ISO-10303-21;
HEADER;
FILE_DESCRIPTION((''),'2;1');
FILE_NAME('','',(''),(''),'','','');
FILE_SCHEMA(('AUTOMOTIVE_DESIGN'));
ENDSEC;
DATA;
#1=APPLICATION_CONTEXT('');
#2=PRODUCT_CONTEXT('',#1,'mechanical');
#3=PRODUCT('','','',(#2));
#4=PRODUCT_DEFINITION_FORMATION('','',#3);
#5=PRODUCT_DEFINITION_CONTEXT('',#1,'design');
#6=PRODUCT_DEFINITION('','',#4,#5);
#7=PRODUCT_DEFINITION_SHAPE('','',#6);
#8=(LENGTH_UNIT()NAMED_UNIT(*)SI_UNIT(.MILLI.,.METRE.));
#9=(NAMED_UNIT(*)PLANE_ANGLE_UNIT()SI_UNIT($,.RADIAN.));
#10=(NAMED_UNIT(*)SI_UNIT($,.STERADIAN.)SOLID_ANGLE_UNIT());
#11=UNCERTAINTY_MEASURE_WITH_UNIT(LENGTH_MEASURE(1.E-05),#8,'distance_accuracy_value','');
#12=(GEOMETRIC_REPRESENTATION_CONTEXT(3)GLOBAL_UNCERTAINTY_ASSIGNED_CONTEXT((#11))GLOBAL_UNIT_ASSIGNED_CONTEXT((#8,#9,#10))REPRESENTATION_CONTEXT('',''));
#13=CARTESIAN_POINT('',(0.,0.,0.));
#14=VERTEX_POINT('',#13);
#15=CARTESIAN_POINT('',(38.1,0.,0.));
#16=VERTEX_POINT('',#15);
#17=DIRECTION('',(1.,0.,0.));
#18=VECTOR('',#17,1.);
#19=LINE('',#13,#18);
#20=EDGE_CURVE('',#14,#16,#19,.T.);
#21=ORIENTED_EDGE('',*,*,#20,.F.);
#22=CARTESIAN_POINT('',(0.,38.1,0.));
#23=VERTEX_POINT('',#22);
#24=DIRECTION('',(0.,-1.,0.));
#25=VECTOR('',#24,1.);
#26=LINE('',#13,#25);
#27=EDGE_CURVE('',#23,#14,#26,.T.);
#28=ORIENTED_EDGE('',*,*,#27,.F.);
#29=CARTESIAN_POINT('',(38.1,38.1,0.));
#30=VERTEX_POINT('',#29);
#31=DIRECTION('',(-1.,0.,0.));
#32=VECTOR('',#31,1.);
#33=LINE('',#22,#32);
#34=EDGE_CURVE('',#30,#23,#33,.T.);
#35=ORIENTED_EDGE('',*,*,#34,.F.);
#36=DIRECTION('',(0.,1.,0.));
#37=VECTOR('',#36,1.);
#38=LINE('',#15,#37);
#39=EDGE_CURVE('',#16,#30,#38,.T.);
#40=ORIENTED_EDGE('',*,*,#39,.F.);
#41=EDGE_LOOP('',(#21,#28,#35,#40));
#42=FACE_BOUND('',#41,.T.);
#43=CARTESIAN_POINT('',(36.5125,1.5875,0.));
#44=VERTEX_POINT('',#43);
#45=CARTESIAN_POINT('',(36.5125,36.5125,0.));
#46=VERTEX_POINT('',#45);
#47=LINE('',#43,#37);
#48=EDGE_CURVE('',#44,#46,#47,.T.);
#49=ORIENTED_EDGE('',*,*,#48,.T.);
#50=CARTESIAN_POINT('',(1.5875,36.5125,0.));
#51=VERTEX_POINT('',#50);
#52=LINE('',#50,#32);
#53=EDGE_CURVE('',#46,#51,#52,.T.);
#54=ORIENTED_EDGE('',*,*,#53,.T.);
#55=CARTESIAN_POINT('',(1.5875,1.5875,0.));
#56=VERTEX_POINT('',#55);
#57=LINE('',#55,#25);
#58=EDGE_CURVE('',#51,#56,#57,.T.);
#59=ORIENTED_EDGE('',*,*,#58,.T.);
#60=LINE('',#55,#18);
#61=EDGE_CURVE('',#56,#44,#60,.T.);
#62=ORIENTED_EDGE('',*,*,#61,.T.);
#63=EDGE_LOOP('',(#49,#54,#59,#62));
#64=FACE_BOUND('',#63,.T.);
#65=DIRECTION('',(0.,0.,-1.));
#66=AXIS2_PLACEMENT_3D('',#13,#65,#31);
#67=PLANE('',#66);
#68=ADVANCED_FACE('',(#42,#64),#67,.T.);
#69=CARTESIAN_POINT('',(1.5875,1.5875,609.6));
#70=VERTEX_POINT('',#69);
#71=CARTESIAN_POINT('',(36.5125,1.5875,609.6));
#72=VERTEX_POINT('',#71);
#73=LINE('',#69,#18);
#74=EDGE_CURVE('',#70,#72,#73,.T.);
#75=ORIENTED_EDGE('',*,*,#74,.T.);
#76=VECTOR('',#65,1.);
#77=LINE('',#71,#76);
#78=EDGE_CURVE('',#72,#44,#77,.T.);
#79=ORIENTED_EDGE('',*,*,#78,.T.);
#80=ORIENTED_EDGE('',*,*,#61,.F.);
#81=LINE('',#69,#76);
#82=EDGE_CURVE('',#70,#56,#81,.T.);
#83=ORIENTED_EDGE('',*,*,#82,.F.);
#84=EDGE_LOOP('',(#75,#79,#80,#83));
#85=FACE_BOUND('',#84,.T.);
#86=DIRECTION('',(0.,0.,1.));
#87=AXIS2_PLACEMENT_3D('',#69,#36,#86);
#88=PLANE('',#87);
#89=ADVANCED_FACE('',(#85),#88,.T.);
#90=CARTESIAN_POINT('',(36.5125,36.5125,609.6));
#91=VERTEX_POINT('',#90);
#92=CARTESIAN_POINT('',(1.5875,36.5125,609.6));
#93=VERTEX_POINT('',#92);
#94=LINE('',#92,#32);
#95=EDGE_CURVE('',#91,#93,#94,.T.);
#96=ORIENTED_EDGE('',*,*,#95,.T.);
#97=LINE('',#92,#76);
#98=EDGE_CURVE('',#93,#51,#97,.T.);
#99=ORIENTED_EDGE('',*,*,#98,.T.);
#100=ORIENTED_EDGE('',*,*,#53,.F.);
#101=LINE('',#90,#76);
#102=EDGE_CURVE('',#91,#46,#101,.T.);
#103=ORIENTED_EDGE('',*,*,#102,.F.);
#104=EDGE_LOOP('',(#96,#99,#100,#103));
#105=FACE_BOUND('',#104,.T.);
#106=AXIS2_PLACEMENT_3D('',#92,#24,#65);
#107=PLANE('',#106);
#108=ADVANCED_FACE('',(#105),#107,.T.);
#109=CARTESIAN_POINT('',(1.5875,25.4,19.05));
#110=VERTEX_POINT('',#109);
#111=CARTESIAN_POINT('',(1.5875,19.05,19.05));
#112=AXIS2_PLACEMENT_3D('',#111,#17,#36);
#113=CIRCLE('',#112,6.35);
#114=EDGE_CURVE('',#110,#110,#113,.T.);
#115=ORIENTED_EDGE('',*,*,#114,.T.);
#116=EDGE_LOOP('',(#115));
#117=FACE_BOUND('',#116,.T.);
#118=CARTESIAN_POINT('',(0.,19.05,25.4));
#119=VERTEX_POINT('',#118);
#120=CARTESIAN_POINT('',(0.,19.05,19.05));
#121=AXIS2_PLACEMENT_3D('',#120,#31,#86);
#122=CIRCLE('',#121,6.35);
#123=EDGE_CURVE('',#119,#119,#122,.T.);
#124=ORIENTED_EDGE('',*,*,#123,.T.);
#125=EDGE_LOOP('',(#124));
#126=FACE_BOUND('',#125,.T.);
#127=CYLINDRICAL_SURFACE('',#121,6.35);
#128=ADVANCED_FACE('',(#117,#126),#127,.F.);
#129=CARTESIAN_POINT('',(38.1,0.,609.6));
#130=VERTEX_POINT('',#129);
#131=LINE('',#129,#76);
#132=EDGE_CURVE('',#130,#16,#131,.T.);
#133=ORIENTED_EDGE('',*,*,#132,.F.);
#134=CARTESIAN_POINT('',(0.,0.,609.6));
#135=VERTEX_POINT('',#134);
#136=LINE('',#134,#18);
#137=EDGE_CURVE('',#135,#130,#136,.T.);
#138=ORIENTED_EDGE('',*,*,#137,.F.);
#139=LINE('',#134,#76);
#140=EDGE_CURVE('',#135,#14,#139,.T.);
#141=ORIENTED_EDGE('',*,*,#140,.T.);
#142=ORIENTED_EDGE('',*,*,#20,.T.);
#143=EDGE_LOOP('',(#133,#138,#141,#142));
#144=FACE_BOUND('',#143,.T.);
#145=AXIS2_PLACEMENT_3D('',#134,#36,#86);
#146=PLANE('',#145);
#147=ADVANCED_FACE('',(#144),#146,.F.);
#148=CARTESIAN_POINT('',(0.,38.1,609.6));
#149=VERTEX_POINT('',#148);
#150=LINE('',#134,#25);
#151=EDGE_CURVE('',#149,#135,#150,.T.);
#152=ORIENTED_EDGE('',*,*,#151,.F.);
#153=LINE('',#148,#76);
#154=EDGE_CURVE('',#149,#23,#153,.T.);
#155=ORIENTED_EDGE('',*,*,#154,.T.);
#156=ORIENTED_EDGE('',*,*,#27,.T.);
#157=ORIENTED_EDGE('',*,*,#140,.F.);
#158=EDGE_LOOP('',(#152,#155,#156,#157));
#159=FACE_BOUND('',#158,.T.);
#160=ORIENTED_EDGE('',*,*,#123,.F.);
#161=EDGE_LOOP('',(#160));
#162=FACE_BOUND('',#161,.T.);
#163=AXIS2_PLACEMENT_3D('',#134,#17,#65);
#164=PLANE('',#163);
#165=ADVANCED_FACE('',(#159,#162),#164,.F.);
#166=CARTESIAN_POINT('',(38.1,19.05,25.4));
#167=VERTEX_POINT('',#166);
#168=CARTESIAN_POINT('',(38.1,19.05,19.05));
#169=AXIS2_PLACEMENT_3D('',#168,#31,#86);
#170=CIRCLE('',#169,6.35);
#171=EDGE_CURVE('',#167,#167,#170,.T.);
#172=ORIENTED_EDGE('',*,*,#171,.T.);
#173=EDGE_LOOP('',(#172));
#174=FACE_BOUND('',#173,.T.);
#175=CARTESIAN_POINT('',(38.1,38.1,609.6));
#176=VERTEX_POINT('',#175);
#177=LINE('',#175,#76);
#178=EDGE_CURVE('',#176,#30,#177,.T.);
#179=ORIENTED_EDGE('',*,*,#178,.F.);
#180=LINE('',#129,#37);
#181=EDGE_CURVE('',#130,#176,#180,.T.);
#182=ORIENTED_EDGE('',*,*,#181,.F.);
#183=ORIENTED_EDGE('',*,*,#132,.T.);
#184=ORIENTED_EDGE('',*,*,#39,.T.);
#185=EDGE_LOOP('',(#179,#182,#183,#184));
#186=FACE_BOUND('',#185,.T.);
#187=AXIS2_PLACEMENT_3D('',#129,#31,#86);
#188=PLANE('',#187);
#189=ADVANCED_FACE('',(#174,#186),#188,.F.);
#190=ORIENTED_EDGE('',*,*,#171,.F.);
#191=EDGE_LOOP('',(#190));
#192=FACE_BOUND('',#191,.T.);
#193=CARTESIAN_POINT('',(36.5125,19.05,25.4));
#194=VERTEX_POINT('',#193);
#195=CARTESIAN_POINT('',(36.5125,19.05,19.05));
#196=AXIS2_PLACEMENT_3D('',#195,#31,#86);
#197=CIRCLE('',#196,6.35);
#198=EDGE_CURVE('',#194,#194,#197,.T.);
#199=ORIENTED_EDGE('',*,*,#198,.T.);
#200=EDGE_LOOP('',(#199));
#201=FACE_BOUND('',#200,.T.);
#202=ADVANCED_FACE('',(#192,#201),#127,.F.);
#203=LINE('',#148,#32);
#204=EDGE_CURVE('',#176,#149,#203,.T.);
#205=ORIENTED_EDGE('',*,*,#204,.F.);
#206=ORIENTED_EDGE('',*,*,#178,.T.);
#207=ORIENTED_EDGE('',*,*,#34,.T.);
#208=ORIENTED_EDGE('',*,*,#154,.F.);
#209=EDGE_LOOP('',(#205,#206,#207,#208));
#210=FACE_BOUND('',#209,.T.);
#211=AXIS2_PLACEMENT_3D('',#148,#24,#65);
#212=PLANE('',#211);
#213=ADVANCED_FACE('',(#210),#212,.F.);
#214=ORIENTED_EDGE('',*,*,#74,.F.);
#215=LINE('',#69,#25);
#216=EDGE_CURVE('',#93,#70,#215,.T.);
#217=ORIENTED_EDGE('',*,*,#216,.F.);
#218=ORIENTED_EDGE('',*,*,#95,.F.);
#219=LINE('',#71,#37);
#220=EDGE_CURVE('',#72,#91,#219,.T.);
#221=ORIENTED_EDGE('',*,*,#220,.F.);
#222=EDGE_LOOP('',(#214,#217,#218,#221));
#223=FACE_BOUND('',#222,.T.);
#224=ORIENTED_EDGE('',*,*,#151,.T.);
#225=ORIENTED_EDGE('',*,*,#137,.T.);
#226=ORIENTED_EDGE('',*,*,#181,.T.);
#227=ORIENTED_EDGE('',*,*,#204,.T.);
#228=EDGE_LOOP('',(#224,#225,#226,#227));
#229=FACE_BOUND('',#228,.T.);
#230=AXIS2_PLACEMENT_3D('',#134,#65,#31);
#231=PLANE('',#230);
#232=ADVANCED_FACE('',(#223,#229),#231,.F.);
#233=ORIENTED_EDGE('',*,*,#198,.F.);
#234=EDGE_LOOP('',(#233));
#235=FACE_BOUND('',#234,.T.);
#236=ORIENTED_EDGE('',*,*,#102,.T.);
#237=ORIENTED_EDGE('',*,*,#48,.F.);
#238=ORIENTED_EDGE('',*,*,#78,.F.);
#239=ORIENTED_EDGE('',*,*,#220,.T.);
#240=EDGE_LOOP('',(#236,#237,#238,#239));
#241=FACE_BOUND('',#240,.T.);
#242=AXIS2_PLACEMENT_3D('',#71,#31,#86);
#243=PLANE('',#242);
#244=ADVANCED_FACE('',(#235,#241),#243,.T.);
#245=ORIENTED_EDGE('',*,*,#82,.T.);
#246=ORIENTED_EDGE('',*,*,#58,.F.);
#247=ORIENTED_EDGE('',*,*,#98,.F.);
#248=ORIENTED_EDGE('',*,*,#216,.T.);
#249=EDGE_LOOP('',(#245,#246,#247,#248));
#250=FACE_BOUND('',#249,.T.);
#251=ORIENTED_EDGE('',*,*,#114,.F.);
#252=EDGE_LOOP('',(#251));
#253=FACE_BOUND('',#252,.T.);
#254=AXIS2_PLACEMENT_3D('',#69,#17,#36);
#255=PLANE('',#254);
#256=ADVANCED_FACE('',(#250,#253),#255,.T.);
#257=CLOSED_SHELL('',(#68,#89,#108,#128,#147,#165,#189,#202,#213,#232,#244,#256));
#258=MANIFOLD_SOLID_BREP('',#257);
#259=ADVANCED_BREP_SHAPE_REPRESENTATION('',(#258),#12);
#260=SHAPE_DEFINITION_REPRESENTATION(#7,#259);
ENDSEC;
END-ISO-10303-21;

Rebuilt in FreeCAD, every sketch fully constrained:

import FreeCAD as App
import Part
import Sketcher

V = App.Vector
Q = App.Units.Quantity

doc = App.newDocument("Part")
body = doc.addObject("PartDesign::Body", "Body")

# Sketch on XY plane
sketch1 = body.newObject("Sketcher::SketchObject", "Sketch")
sketch1.AttachmentSupport = (doc.getObject("XY_Plane"), [""])
sketch1.MapMode = "FlatFace"
sketch1.addGeometry([
    Part.LineSegment(V(0, 38, 0), V(0, 0, 0)),  # 0
    Part.LineSegment(V(0, 0, 0), V(38, 0, 0)),  # 1
    Part.LineSegment(V(38, 0, 0), V(38, 38, 0)),  # 2
    Part.LineSegment(V(38, 38, 0), V(0, 38, 0)),  # 3
    Part.LineSegment(V(37, 2, 0), V(2, 2, 0)),  # 4
    Part.LineSegment(V(2, 2, 0), V(2, 37, 0)),  # 5
    Part.LineSegment(V(2, 37, 0), V(37, 37, 0)),  # 6
    Part.LineSegment(V(37, 37, 0), V(37, 2, 0)),  # 7
], False)
sketch1.addConstraint([
    Sketcher.Constraint("Coincident", 0, 2, 1, 1),
    Sketcher.Constraint("Coincident", 1, 2, 2, 1),
    Sketcher.Constraint("Coincident", 2, 2, 3, 1),
    Sketcher.Constraint("Coincident", 3, 2, 0, 1),
    Sketcher.Constraint("Coincident", 4, 2, 5, 1),
    Sketcher.Constraint("Coincident", 5, 2, 6, 1),
    Sketcher.Constraint("Coincident", 6, 2, 7, 1),
    Sketcher.Constraint("Coincident", 7, 2, 4, 1),
    Sketcher.Constraint("Vertical", 0),
    Sketcher.Constraint("Horizontal", 1),
    Sketcher.Constraint("Vertical", 2),
    Sketcher.Constraint("Horizontal", 3),
    Sketcher.Constraint("Horizontal", 4),
    Sketcher.Constraint("Vertical", 5),
    Sketcher.Constraint("Horizontal", 6),
    Sketcher.Constraint("Vertical", 7),
    Sketcher.Constraint("Coincident", 0, 2, -1, 1),
    Sketcher.Constraint("Equal", 3, 0),
    Sketcher.Constraint("Equal", 6, 5),
    Sketcher.Constraint("DistanceX", 1, 1, 1, 2, Q("1.5 in")),
    Sketcher.Constraint("DistanceX", 4, 2, 4, 1, Q("1.375 in")),
    Sketcher.Constraint("DistanceX", -1, 1, 4, 2, Q("0.0625 in")),
    Sketcher.Constraint("DistanceY", -1, 1, 4, 2, Q("0.0625 in")),
])
pad1 = body.newObject("PartDesign::Pad", "Pad")
pad1.Profile = sketch1
pad1.Length = Q("24 in")

# Sketch on YZ plane
sketch2 = body.newObject("Sketcher::SketchObject", "Sketch001")
sketch2.AttachmentSupport = (doc.getObject("YZ_Plane"), [""])
sketch2.MapMode = "FlatFace"
sketch2.addGeometry(Part.Circle(V(19, 19, 0), V(0, 0, 1), 6), False)
sketch2.addConstraint([
    Sketcher.Constraint("Diameter", 0, Q("0.5 in")),
    Sketcher.Constraint("DistanceX", -1, 1, 0, 3, Q("0.75 in")),
    Sketcher.Constraint("DistanceY", -1, 1, 0, 3, Q("0.75 in")),
])
doc.recompute()
hole = body.newObject("PartDesign::Hole", "Hole")
hole.Profile = sketch2
hole.ThreadType = "None"
hole.Diameter = Q("0.5 in")
hole.DepthType = "ThroughAll"
hole.Reversed = True

doc.recompute()
